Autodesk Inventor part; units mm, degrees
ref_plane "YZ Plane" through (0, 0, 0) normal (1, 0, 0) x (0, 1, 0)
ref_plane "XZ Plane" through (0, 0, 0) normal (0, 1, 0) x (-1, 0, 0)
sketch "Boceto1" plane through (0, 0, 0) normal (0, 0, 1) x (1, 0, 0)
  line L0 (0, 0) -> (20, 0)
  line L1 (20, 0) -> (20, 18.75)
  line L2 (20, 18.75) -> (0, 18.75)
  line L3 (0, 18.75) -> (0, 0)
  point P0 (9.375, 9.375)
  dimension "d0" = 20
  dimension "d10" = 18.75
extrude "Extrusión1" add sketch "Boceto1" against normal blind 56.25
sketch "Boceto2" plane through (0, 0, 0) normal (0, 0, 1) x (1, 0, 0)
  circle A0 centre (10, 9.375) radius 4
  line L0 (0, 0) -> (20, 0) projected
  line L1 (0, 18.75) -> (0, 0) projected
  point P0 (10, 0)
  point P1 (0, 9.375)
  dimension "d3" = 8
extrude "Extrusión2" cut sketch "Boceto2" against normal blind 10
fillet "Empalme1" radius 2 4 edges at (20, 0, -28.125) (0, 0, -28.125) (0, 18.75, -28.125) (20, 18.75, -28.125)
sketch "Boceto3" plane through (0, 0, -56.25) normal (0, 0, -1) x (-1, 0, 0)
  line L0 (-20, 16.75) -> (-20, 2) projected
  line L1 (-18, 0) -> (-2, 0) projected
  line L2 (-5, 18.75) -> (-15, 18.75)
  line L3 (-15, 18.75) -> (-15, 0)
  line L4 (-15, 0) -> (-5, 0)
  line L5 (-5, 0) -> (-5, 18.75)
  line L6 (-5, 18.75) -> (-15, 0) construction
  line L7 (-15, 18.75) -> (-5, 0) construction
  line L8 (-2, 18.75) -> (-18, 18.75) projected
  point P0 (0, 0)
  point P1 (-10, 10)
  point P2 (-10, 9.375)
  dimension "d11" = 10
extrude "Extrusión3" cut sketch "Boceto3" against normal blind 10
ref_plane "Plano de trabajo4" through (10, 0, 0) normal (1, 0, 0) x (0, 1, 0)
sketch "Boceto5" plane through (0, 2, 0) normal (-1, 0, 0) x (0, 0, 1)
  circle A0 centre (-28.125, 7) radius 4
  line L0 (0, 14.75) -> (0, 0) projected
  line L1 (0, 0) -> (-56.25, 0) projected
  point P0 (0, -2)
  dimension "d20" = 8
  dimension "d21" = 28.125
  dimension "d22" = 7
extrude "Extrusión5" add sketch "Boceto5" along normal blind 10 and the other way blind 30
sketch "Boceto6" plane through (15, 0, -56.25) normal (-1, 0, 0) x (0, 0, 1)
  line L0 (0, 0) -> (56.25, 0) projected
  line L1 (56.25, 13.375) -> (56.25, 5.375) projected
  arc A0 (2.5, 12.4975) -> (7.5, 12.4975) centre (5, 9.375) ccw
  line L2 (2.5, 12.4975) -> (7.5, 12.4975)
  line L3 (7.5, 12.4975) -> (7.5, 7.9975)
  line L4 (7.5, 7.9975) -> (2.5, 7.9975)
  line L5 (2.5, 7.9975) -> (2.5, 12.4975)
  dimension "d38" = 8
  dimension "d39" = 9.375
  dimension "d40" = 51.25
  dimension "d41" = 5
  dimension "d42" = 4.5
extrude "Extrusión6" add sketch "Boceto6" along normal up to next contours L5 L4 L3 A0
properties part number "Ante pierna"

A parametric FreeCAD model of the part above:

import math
import FreeCAD as App
import Part
import Sketcher
from FreeCAD import Vector
Q = App.Units.Quantity


def edges_at(feature, points):
    """Names of the edges that pass closest to the given points."""
    edges = feature.Shape.Edges
    near = lambda p: min(range(len(edges)), key=lambda i: edges[i].distToShape(Part.Vertex(*p))[0])
    return sorted({f"Edge{near(p) + 1}" for p in points})

doc = App.newDocument("Part")
params = doc.addObject("Spreadsheet::Sheet", "Params")
for row, (alias, value) in enumerate([
    ("sketch1_width", "20 mm"),
    ("sketch1_height", "18.75 mm"),
    ("pad1_length", "56.25 mm"),
    ("sketch2_diameter", "8 mm"),
    ("pocket1_length", "10 mm"),
    ("fillet_radius", "2 mm"),
    ("sketch3_width", "10 mm"),
    ("sketch3_height", "18.75 mm"),
    ("pocket2_length", "10 mm"),
    ("sketch4_diameter", "8 mm"),
    ("pad2_length", "10 mm"),
    ("pad2_length2", "30 mm"),
    ("sketch5_radius", "4 mm"),
    ("sketch5_height", "5 mm"),
    ("sketch5_width", "4.5 mm"),
], start=1):
    params.set(f"A{row}", alias)
    params.set(f"B{row}", "=" + value)
    params.setAlias(f"B{row}", alias)

body = doc.addObject("PartDesign::Body", "Body")

sketch1 = doc.addObject("Sketcher::SketchObject", "Sketch")
body.addObject(sketch1)
sketch1.AttachmentSupport = (doc.XY_Plane, [""])
sketch1.MapMode = "FlatFace"
sketch1.addGeometry(Part.LineSegment(Vector(0, 19, 0), Vector(0, 0, 0)), False)
sketch1.addGeometry(Part.LineSegment(Vector(0, 0, 0), Vector(20, 0, 0)), False)
sketch1.addGeometry(Part.LineSegment(Vector(20, 0, 0), Vector(20, 19, 0)), False)
sketch1.addGeometry(Part.LineSegment(Vector(20, 19, 0), Vector(0, 19, 0)), False)
sketch1.addConstraint(Sketcher.Constraint("Coincident", 0, 2, 1, 1))
sketch1.addConstraint(Sketcher.Constraint("Coincident", 1, 2, 2, 1))
sketch1.addConstraint(Sketcher.Constraint("Coincident", 2, 2, 3, 1))
sketch1.addConstraint(Sketcher.Constraint("Coincident", 3, 2, 0, 1))
sketch1.addConstraint(Sketcher.Constraint("Vertical", 0))
sketch1.addConstraint(Sketcher.Constraint("Horizontal", 1))
sketch1.addConstraint(Sketcher.Constraint("Vertical", 2))
sketch1.addConstraint(Sketcher.Constraint("Horizontal", 3))
sketch1.addConstraint(Sketcher.Constraint("Coincident", 0, 2, -1, 1))
sketch1.addConstraint(Sketcher.Constraint("DistanceX", 1, 1, 1, 2, Q("20 mm")))
sketch1.addConstraint(Sketcher.Constraint("DistanceY", 0, 2, 0, 1, Q("18.75 mm")))
sketch1.setExpression("Constraints[9]", "Params.sketch1_width")
sketch1.setExpression("Constraints[10]", "Params.sketch1_height")
pad1 = doc.addObject("PartDesign::Pad", "Pad")
body.addObject(pad1)
pad1.Profile = sketch1
pad1.setExpression("Length", "Params.pad1_length")
pad1.Reversed = True

sketch2 = doc.addObject("Sketcher::SketchObject", "Sketch001")
body.addObject(sketch2)
sketch2.AttachmentSupport = (doc.XY_Plane, [""])
sketch2.MapMode = "FlatFace"
sketch2.addGeometry(Part.Circle(Vector(10, 9.4, 0), Vector(0, 0, 1), 4), False)
sketch2.addConstraint(Sketcher.Constraint("Diameter", 0, Q("8 mm")))
sketch2.addConstraint(Sketcher.Constraint("DistanceX", -1, 1, 0, 3, Q("10 mm")))
sketch2.addConstraint(Sketcher.Constraint("DistanceY", -1, 1, 0, 3, Q("9.375 mm")))
sketch2.setExpression("Constraints[0]", "Params.sketch2_diameter")
pocket1 = doc.addObject("PartDesign::Pocket", "Pocket")
body.addObject(pocket1)
pocket1.Profile = sketch2
pocket1.setExpression("Length", "Params.pocket1_length")
doc.recompute()

fillet = doc.addObject("PartDesign::Fillet", "Fillet")
body.addObject(fillet)
fillet.Base = (pocket1, edges_at(pocket1, [
    (20, 0, -28.125),
    (0, 0, -28.125),
    (0, 18.75, -28.125),
    (20, 18.75, -28.125),
]))
fillet.setExpression("Radius", "Params.fillet_radius")

sketch3 = doc.addObject("Sketcher::SketchObject", "Sketch002")
body.addObject(sketch3)
sketch3.AttachmentSupport = (doc.XY_Plane, [""])
sketch3.MapMode = "FlatFace"
sketch3.AttachmentOffset = App.Placement(Vector(0, 0, -56.25), App.Rotation())
sketch3.addGeometry(Part.LineSegment(Vector(15, 19, 0), Vector(15, 0, 0)), False)
sketch3.addGeometry(Part.LineSegment(Vector(15, 0, 0), Vector(5, 0, 0)), False)
sketch3.addGeometry(Part.LineSegment(Vector(5, 0, 0), Vector(5, 19, 0)), False)
sketch3.addGeometry(Part.LineSegment(Vector(5, 19, 0), Vector(15, 19, 0)), False)
sketch3.addConstraint(Sketcher.Constraint("Coincident", 0, 2, 1, 1))
sketch3.addConstraint(Sketcher.Constraint("Coincident", 1, 2, 2, 1))
sketch3.addConstraint(Sketcher.Constraint("Coincident", 2, 2, 3, 1))
sketch3.addConstraint(Sketcher.Constraint("Coincident", 3, 2, 0, 1))
sketch3.addConstraint(Sketcher.Constraint("Vertical", 0))
sketch3.addConstraint(Sketcher.Constraint("Horizontal", 1))
sketch3.addConstraint(Sketcher.Constraint("Vertical", 2))
sketch3.addConstraint(Sketcher.Constraint("Horizontal", 3))
sketch3.addConstraint(Sketcher.Constraint("PointOnObject", 0, 2, -1))
sketch3.addConstraint(Sketcher.Constraint("DistanceX", 1, 2, 1, 1, Q("10 mm")))
sketch3.addConstraint(Sketcher.Constraint("DistanceX", -1, 1, 0, 2, Q("15 mm")))
sketch3.addConstraint(Sketcher.Constraint("DistanceY", 0, 2, 0, 1, Q("18.75 mm")))
sketch3.setExpression("Constraints[9]", "Params.sketch3_width")
sketch3.setExpression("Constraints[11]", "Params.sketch3_height")
pocket2 = doc.addObject("PartDesign::Pocket", "Pocket001")
body.addObject(pocket2)
pocket2.Profile = sketch3
pocket2.setExpression("Length", "Params.pocket2_length")
pocket2.Reversed = True

sketch4 = doc.addObject("Sketcher::SketchObject", "Sketch003")
body.addObject(sketch4)
sketch4.AttachmentSupport = (doc.YZ_Plane, [""])
sketch4.MapMode = "FlatFace"
sketch4.addGeometry(Part.Circle(Vector(9, -28.1, 0), Vector(0, 0, 1), 4), False)
sketch4.addConstraint(Sketcher.Constraint("Diameter", 0, Q("8 mm")))
sketch4.addConstraint(Sketcher.Constraint("DistanceX", -1, 1, 0, 3, Q("9 mm")))
sketch4.addConstraint(Sketcher.Constraint("DistanceY", 0, 3, -1, 1, Q("28.125 mm")))
sketch4.setExpression("Constraints[0]", "Params.sketch4_diameter")
pad2 = doc.addObject("PartDesign::Pad", "Pad001")
body.addObject(pad2)
pad2.Profile = sketch4
pad2.Type = "TwoLengths"
pad2.setExpression("Length", "Params.pad2_length")
pad2.setExpression("Length2", "Params.pad2_length2")
pad2.Reversed = True

sketch5 = doc.addObject("Sketcher::SketchObject", "Sketch004")
body.addObject(sketch5)
sketch5.AttachmentSupport = (doc.YZ_Plane, [""])
sketch5.MapMode = "FlatFace"
sketch5.AttachmentOffset = App.Placement(Vector(0, 0, 15), App.Rotation())
sketch5.addGeometry(Part.LineSegment(Vector(8, -53.8, 0), Vector(12.5, -53.8, 0)), False)
sketch5.addGeometry(Part.ArcOfCircle(Part.Circle(Vector(9.4, -51.2, 0), Vector(0, 0, 1), 4), math.radians(39), math.radians(321)), False)
sketch5.addGeometry(Part.LineSegment(Vector(12.5, -48.8, 0), Vector(8, -48.8, 0)), False)
sketch5.addGeometry(Part.LineSegment(Vector(8, -48.8, 0), Vector(8, -53.8, 0)), False)
sketch5.addConstraint(Sketcher.Constraint("Coincident", 0, 2, 1, 2))
sketch5.addConstraint(Sketcher.Constraint("Coincident", 1, 1, 2, 1))
sketch5.addConstraint(Sketcher.Constraint("Coincident", 2, 2, 3, 1))
sketch5.addConstraint(Sketcher.Constraint("Coincident", 3, 2, 0, 1))
sketch5.addConstraint(Sketcher.Constraint("Horizontal", 0))
sketch5.addConstraint(Sketcher.Constraint("Horizontal", 2))
sketch5.addConstraint(Sketcher.Constraint("Vertical", 3))
sketch5.addConstraint(Sketcher.Constraint("Vertical", 0, 2, 1, 1))
sketch5.addConstraint(Sketcher.Constraint("Radius", 1, Q("4 mm")))
sketch5.addConstraint(Sketcher.Constraint("DistanceY", 3, 2, 3, 1, Q("5 mm")))
sketch5.addConstraint(Sketcher.Constraint("DistanceX", 0, 1, 0, 2, Q("4.5 mm")))
sketch5.addConstraint(Sketcher.Constraint("DistanceY", 1, 3, -1, 1, Q("51.25 mm")))
sketch5.addConstraint(Sketcher.Constraint("DistanceX", -1, 1, 1, 3, Q("9.375 mm")))
sketch5.setExpression("Constraints[8]", "Params.sketch5_radius")
sketch5.setExpression("Constraints[9]", "Params.sketch5_height")
sketch5.setExpression("Constraints[10]", "Params.sketch5_width")
pad3 = doc.addObject("PartDesign::Pad", "Pad002")
body.addObject(pad3)
pad3.Profile = sketch5
pad3.Type = "UpToFirst"
pad3.Reversed = True

doc.recompute()
